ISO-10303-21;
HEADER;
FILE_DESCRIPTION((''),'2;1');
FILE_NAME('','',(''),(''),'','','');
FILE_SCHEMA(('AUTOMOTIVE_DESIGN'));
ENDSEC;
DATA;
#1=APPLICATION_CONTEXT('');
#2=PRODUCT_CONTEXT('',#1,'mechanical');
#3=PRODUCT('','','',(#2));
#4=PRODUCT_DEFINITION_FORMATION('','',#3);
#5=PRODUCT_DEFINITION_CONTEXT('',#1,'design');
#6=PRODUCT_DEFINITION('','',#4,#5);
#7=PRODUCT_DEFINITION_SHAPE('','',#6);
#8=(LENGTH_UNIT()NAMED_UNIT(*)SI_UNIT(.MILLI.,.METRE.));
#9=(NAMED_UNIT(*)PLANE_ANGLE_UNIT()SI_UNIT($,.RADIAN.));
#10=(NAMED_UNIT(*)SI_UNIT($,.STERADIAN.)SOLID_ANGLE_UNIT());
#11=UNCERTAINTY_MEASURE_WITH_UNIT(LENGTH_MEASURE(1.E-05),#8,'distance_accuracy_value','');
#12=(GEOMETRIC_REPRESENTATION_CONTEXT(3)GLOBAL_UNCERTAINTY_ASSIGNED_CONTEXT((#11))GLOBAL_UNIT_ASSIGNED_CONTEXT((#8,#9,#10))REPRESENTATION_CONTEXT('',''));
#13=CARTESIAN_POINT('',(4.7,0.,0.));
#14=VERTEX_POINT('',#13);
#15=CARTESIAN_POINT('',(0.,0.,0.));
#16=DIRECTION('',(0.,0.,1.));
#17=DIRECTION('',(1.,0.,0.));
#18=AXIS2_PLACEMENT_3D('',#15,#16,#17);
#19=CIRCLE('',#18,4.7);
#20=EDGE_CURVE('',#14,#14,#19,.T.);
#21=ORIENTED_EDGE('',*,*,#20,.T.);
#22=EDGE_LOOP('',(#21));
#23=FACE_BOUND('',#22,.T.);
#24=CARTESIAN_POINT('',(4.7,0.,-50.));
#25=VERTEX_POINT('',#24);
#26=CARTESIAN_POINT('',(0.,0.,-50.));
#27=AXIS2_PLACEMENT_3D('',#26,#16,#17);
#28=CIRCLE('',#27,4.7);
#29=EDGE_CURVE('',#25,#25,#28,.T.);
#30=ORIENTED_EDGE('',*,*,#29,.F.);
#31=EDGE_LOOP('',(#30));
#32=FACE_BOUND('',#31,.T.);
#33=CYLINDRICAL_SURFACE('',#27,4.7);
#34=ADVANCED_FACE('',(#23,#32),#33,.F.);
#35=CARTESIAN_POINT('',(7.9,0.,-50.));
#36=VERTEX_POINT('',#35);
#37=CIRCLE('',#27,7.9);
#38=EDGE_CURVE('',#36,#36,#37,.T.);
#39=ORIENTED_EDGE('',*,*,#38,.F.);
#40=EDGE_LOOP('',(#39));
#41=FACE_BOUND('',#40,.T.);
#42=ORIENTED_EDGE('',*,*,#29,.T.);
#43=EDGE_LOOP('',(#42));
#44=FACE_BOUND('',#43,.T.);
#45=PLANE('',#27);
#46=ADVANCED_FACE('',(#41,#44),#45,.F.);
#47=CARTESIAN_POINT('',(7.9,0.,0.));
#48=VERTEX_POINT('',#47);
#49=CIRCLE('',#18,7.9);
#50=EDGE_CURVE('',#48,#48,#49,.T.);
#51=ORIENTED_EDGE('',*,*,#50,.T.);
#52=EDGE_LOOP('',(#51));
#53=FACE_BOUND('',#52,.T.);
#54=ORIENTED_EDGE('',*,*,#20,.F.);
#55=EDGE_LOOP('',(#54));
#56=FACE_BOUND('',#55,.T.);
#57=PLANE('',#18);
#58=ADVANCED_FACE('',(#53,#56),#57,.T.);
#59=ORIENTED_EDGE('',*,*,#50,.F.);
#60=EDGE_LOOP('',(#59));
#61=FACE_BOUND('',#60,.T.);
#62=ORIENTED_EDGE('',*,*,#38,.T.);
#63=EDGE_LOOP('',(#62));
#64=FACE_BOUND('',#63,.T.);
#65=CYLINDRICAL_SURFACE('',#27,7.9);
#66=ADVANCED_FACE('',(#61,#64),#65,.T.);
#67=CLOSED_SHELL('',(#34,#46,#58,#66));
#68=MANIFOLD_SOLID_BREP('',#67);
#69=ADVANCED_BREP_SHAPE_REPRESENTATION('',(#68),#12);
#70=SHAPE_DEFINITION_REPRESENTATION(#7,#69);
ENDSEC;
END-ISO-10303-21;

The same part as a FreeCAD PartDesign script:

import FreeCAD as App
import Part
import Sketcher

doc = App.newDocument("Part")
body = doc.addObject("PartDesign::Body", "Body")

# Sketch on XY plane
sketch1 = body.newObject("Sketcher::SketchObject", "Sketch")
sketch1.AttachmentSupport = (doc.getObject("XY_Plane"), [""])
sketch1.MapMode = "FlatFace"
sketch1.addGeometry([
    Part.Circle(App.Vector(0, 0, 0), App.Vector(0, 0, 1), 7.9),
    Part.Circle(App.Vector(0, 0, 0), App.Vector(0, 0, 1), 4.7),
], False)
sketch1.addConstraint([
    Sketcher.Constraint("Coincident", 0, 3, -1, 1),
    Sketcher.Constraint("Coincident", 1, 3, -1, 1),
    Sketcher.Constraint("Diameter", 0, 15.8),
    Sketcher.Constraint("Diameter", 1, 9.4),
])
pad1 = body.newObject("PartDesign::Pad", "Pad")
pad1.Profile = sketch1
pad1.Length = 50
pad1.Reversed = True

doc.recompute()
